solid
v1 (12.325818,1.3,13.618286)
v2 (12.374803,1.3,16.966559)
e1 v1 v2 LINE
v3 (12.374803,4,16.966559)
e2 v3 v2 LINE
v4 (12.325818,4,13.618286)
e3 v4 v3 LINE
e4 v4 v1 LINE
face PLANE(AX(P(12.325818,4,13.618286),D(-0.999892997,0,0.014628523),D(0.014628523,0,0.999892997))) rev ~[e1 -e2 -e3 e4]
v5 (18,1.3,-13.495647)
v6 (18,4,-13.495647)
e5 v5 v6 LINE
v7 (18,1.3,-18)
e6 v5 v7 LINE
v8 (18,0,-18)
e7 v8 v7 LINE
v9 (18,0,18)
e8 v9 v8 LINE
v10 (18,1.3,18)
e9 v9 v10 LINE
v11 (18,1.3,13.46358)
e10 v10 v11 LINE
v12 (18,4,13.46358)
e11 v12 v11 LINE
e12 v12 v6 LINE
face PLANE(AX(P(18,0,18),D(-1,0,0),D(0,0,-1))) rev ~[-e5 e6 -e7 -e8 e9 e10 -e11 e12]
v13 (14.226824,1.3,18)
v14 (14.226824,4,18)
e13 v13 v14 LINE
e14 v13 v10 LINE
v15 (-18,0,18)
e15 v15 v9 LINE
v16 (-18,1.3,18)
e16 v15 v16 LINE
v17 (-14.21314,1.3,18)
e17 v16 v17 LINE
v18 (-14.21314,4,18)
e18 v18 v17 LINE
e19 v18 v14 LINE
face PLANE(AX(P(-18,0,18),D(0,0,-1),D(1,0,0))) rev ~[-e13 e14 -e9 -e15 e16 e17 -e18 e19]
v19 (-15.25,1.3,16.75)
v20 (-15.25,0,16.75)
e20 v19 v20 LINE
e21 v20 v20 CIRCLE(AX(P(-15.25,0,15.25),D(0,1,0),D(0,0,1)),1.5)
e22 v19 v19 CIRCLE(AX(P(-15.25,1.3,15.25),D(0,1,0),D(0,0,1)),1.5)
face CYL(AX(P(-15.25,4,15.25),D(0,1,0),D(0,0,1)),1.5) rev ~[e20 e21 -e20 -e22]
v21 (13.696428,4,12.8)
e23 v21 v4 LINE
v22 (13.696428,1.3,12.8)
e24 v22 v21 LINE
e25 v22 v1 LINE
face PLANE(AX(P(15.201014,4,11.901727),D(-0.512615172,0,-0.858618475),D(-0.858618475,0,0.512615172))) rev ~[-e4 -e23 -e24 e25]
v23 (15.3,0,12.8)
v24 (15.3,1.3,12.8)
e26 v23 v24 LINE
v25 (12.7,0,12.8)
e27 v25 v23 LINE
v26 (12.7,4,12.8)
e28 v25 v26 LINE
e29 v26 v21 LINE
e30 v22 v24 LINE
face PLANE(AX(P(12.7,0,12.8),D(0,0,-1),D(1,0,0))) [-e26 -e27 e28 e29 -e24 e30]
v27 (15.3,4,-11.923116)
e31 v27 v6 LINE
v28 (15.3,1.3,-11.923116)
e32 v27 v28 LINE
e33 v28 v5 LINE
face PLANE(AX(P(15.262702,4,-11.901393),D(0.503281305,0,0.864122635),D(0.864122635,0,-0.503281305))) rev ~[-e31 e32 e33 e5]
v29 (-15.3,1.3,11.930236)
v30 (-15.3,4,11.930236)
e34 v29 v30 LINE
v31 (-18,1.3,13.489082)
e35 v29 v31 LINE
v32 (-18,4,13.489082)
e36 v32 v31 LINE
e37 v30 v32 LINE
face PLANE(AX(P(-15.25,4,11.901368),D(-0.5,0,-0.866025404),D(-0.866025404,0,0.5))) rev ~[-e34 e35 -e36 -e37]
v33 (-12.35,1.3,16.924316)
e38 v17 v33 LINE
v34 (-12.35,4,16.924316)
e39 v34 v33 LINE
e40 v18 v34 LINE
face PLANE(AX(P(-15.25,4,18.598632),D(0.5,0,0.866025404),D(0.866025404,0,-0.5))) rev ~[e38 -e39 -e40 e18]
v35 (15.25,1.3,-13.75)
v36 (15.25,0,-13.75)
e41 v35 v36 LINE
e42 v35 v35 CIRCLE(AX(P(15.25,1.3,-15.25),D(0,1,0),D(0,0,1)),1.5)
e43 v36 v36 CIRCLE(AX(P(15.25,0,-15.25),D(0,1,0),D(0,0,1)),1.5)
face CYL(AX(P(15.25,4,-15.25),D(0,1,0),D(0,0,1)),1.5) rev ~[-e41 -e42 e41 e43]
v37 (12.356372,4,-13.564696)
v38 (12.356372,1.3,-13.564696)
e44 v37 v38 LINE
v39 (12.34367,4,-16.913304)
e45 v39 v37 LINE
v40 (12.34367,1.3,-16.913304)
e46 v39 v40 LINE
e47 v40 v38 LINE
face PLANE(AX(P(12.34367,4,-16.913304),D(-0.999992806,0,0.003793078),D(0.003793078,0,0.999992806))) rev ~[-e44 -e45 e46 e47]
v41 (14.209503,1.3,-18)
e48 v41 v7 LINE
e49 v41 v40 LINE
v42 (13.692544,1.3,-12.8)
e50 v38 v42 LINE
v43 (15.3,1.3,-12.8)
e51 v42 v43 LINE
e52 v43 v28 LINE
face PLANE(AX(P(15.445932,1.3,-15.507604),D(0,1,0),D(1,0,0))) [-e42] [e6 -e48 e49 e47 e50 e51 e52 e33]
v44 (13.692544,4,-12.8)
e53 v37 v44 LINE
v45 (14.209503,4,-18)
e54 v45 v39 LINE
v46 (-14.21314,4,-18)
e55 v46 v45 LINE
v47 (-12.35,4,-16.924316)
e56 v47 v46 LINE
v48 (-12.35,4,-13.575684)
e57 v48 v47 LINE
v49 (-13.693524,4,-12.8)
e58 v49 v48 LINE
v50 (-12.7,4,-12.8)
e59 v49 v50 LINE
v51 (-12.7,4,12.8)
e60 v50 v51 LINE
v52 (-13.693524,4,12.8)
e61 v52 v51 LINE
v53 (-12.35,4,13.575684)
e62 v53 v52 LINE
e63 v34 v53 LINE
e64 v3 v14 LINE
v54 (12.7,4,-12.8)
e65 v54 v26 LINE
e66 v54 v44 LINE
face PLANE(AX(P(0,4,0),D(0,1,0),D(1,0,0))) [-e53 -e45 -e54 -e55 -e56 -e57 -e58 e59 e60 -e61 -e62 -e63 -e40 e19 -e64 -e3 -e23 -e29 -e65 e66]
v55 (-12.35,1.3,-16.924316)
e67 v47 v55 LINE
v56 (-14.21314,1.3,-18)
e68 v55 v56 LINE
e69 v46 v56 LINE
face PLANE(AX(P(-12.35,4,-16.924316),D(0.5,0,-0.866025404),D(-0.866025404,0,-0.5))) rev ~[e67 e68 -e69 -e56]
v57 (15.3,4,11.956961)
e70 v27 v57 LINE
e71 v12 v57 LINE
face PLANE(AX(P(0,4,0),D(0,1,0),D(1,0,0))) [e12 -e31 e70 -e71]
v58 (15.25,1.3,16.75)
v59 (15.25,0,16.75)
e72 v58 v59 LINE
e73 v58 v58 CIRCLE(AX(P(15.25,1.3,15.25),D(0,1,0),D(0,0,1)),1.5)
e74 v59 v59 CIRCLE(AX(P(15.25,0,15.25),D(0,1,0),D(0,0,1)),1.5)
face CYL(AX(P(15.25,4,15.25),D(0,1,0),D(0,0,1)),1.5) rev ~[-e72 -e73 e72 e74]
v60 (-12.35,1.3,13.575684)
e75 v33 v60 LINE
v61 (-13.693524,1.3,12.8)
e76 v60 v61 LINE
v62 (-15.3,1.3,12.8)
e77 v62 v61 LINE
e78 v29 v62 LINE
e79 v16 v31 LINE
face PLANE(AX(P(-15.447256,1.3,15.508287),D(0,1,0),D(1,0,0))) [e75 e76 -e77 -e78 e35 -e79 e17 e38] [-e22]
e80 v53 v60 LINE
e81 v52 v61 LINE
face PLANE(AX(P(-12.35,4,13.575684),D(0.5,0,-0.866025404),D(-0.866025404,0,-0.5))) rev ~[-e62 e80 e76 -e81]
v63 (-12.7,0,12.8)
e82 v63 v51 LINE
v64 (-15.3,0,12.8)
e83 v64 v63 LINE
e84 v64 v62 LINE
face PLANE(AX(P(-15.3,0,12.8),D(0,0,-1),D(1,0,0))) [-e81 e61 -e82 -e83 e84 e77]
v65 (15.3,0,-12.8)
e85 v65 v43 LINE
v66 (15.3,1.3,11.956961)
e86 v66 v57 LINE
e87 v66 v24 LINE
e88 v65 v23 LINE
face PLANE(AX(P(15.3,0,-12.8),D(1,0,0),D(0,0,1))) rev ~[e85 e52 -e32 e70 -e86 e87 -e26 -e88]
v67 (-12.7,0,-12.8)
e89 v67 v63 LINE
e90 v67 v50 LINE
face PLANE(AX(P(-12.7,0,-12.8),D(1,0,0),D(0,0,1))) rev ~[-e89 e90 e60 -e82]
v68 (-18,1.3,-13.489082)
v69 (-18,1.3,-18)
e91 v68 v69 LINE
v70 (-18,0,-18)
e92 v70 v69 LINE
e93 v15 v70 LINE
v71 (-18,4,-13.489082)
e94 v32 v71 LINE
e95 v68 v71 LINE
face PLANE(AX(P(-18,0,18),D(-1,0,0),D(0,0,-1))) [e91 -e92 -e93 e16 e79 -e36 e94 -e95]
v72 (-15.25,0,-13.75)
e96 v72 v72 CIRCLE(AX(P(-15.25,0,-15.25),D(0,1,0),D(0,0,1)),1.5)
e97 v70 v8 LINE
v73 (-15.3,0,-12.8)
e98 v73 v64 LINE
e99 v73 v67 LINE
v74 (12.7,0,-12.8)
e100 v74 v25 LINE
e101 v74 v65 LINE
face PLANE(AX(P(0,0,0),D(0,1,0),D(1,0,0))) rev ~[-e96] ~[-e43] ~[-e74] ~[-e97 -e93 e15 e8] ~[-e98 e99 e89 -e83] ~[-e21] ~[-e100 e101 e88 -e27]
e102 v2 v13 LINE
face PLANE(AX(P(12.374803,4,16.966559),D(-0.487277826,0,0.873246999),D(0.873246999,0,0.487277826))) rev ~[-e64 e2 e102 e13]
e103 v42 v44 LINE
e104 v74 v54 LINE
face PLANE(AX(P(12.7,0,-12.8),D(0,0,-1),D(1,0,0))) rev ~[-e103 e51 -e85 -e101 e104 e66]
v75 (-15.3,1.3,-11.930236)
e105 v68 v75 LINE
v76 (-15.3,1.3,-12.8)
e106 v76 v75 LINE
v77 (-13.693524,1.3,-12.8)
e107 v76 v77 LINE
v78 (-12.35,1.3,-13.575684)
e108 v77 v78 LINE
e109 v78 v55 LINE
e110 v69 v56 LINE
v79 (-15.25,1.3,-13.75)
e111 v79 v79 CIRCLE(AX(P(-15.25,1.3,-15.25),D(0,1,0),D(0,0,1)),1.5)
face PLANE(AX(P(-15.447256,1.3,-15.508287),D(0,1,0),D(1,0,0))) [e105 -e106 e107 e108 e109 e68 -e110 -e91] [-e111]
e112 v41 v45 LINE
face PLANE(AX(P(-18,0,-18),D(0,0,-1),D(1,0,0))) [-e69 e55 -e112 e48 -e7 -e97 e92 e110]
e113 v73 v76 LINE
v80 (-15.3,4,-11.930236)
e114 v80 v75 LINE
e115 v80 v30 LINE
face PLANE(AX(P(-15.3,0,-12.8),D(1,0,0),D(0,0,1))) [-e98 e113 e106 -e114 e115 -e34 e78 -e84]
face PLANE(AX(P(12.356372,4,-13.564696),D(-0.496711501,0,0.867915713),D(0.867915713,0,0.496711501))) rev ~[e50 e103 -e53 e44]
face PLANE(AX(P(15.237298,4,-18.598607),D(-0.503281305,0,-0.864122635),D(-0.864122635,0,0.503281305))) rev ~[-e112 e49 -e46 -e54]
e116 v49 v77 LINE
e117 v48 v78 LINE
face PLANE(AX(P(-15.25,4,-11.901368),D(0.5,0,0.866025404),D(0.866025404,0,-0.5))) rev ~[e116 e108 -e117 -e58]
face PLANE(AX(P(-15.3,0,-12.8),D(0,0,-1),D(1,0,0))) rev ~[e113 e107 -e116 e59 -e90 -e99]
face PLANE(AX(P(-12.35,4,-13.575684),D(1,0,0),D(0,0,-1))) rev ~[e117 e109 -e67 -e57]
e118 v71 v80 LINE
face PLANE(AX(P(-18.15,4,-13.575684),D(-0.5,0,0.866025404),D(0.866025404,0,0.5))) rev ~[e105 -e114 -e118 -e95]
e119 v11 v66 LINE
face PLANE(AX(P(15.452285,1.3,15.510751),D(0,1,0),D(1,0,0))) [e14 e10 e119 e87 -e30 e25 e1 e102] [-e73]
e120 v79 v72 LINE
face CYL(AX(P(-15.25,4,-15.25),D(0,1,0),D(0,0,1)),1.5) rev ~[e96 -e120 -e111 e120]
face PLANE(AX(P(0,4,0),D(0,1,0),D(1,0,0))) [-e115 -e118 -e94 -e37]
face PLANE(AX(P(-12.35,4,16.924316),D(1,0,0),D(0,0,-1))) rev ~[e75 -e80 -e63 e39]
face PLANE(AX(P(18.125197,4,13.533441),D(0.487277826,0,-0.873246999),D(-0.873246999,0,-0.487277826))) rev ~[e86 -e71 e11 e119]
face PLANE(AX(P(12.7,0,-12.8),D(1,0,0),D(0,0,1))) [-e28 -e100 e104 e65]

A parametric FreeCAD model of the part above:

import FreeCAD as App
import Part
import Sketcher

V = App.Vector
Q = App.Units.Quantity


def add_polygon(sketch, points):
    """Adds a closed chain of lines whose ends are joined by coincident constraints."""
    first, n = sketch.GeometryCount, len(points)
    for a, b in zip(points, points[1:] + points[:1]):
        sketch.addGeometry(Part.LineSegment(App.Vector(*a, 0), App.Vector(*b, 0)), False)
    for i in range(n):
        sketch.addConstraint(Sketcher.Constraint("Coincident", first + i, 2, first + (i + 1) % n, 1))

doc = App.newDocument("Part")
params = doc.addObject("Spreadsheet::Sheet", "Params")
for row, (alias, value) in enumerate([
    ("sketch1_width", "36 mm"),
    ("pad1_length", "4 mm"),
    ("sketch2_diameter", "3 mm"),
    ("sketch3_width", "2.9 mm"),
    ("pocket2_length", "2.7 mm"),
    ("sketch4_width", "2.6 mm"),
    ("sketch4_height", "25.6 mm"),
    ("sketch5_width", "2.6 mm"),
    ("sketch5_height", "25.6 mm"),
], start=1):
    params.set(f"A{row}", alias)
    params.set(f"B{row}", "=" + value)
    params.setAlias(f"B{row}", alias)

body = doc.addObject("PartDesign::Body", "Body")

# Sketch on XZ plane
sketch1 = body.newObject("Sketcher::SketchObject", "Sketch")
sketch1.AttachmentSupport = (doc.getObject("XZ_Plane"), [""])
sketch1.MapMode = "FlatFace"
add_polygon(sketch1, [(-18, -18), (-18, 18), (18, 18), (18, -18)])  # lines 0-3
sketch1.addConstraint(Sketcher.Constraint("Vertical", 0))
sketch1.addConstraint(Sketcher.Constraint("Horizontal", 1))
sketch1.addConstraint(Sketcher.Constraint("Vertical", 2))
sketch1.addConstraint(Sketcher.Constraint("Horizontal", 3))
sketch1.addConstraint(Sketcher.Constraint("Symmetric", 0, 2, 2, 2, -1, 1))
sketch1.addConstraint(Sketcher.Constraint("Equal", 3, 0))
sketch1.addConstraint(Sketcher.Constraint("DistanceX", 1, 1, 1, 2, 36.0))
sketch1.setExpression("Constraints[10]", "Params.sketch1_width")
pad1 = body.newObject("PartDesign::Pad", "Pad")
pad1.Profile = sketch1
pad1.setExpression("Length", "Params.pad1_length")
pad1.Reversed = True

# Sketch on XZ plane
sketch2 = body.newObject("Sketcher::SketchObject", "Sketch001")
sketch2.AttachmentSupport = (doc.getObject("XZ_Plane"), [""])
sketch2.MapMode = "FlatFace"
sketch2.AttachmentOffset = App.Placement(V(0, 0, -4), App.Rotation())
sketch2.addGeometry(Part.Circle(V(-15.2, -15.2, 0), V(0, 0, 1), 1.5), False)
sketch2.addGeometry(Part.Circle(V(15.2, -15.2, 0), V(0, 0, 1), 1.5), False)
sketch2.addGeometry(Part.Circle(V(15.2, 15.2, 0), V(0, 0, 1), 1.5), False)
sketch2.addGeometry(Part.Circle(V(-15.2, 15.2, 0), V(0, 0, 1), 1.5), False)
sketch2.addConstraint(Sketcher.Constraint("Equal", 0, 1))
sketch2.addConstraint(Sketcher.Constraint("Equal", 1, 2))
sketch2.addConstraint(Sketcher.Constraint("Equal", 2, 3))
sketch2.addConstraint(Sketcher.Constraint("Symmetric", 0, 3, 2, 3, -1, 1))
sketch2.addConstraint(Sketcher.Constraint("Symmetric", 1, 3, 3, 3, -1, 1))
sketch2.addConstraint(Sketcher.Constraint("Symmetric", 0, 3, 1, 3, -2))
sketch2.addConstraint(Sketcher.Constraint("Diameter", 0, 3.0))
sketch2.addConstraint(Sketcher.Constraint("DistanceX", 0, 3, 1, 3, 30.5))
sketch2.addConstraint(Sketcher.Constraint("DistanceY", 1, 3, 2, 3, 30.5))
sketch2.setExpression("Constraints[6]", "Params.sketch2_diameter")
pocket1 = body.newObject("PartDesign::Pocket", "Pocket")
pocket1.Profile = sketch2
pocket1.Type = "ThroughAll"
pocket1.Reversed = True

# Sketch on XZ plane
sketch3 = body.newObject("Sketcher::SketchObject", "Sketch002")
sketch3.AttachmentSupport = (doc.getObject("XZ_Plane"), [""])
sketch3.MapMode = "FlatFace"
sketch3.AttachmentOffset = App.Placement(V(0, 0, -4), App.Rotation())
add_polygon(sketch3, [(-15.25, -11.901368), (-12.35, -13.575684), (-12.35, -16.924316), (-15.25, -18.598632), (-18.15, -18.598632), (-18.15, -13.575684)])  # lines 0-5
add_polygon(sketch3, [(15.262702, -11.901393), (18.15633, -13.586696), (18.143628, -16.935304), (18.143628, -18.598607), (15.237298, -18.598607), (12.34367, -16.913304), (12.356372, -13.564696)])  # lines 6-12
add_polygon(sketch3, [(18.174182, 16.881714), (18.125197, 13.533441), (15.201014, 11.901727), (12.325818, 13.618286), (12.374803, 16.966559), (15.298986, 18.598273), (18.174182, 18.598273)])  # lines 13-19
add_polygon(sketch3, [(-15.25, 18.598632), (-12.35, 16.924316), (-12.35, 13.575684), (-15.25, 11.901368), (-18.15, 13.575684), (-18.15, 18.598632)])  # lines 20-25
sketch3.addConstraint(Sketcher.Constraint("Vertical", 1))
sketch3.addConstraint(Sketcher.Constraint("Horizontal", 3))
sketch3.addConstraint(Sketcher.Constraint("Vertical", 4))
sketch3.addConstraint(Sketcher.Constraint("Vertical", 8))
sketch3.addConstraint(Sketcher.Constraint("Horizontal", 9))
sketch3.addConstraint(Sketcher.Constraint("Horizontal", 18))
sketch3.addConstraint(Sketcher.Constraint("Vertical", 19))
sketch3.addConstraint(Sketcher.Constraint("Vertical", 21))
sketch3.addConstraint(Sketcher.Constraint("Vertical", 24))
sketch3.addConstraint(Sketcher.Constraint("Horizontal", 25))
sketch3.addConstraint(Sketcher.Constraint("Symmetric", 1, 2, 20, 2, -1))
sketch3.addConstraint(Sketcher.Constraint("Symmetric", 5, 2, 22, 2, -1))
sketch3.addConstraint(Sketcher.Constraint("Symmetric", 4, 2, 23, 2, -1))
sketch3.addConstraint(Sketcher.Constraint("Symmetric", 2, 2, 25, 2, -1))
sketch3.addConstraint(Sketcher.Constraint("Parallel", 2, 5))
sketch3.addConstraint(Sketcher.Constraint("Parallel", 6, 10))
sketch3.addConstraint(Sketcher.Constraint("Parallel", 7, 11))
sketch3.addConstraint(Sketcher.Constraint("Parallel", 13, 16))
sketch3.addConstraint(Sketcher.Constraint("Parallel", 14, 17))
sketch3.addConstraint(Sketcher.Constraint("Parallel", 0, 20))
sketch3.addConstraint(Sketcher.Constraint("Parallel", 5, 22))
sketch3.addConstraint(Sketcher.Constraint("Horizontal", 0, 2, 4, 2))
sketch3.addConstraint(Sketcher.Constraint("Vertical", 2, 2, 5, 2))
sketch3.addConstraint(Sketcher.Constraint("Equal", 5, 6))
sketch3.addConstraint(Sketcher.Constraint("Equal", 6, 7))
sketch3.addConstraint(Sketcher.Constraint("Equal", 7, 10))
sketch3.addConstraint(Sketcher.Constraint("Equal", 10, 11))
sketch3.addConstraint(Sketcher.Constraint("Equal", 11, 12))
sketch3.addConstraint(Sketcher.Constraint("Equal", 12, 13))
sketch3.addConstraint(Sketcher.Constraint("Equal", 13, 14))
sketch3.addConstraint(Sketcher.Constraint("Equal", 14, 15))
sketch3.addConstraint(Sketcher.Constraint("Equal", 15, 16))
sketch3.addConstraint(Sketcher.Constraint("Equal", 16, 17))
sketch3.addConstraint(Sketcher.Constraint("Angle", 0, Q("-30 deg")))
sketch3.addConstraint(Sketcher.Constraint("DistanceX", 3, 2, 3, 1, 2.9))
sketch3.addConstraint(Sketcher.Constraint("DistanceX", 0, 2, -1, 1, 12.35))
sketch3.addConstraint(Sketcher.Constraint("DistanceY", 7, 2, 10, 2, 0.022))
sketch3.addConstraint(Sketcher.Constraint("DistanceX", 9, 2, 9, 1, 2.90633))
sketch3.addConstraint(Sketcher.Constraint("DistanceY", 1, 2, 1, 1, 3.348632))
sketch3.addConstraint(Sketcher.Constraint("DistanceY", 19, 2, 19, 1, 1.716559))
sketch3.addConstraint(Sketcher.Constraint("DistanceX", -1, 1, 9, 2, 15.237298))
sketch3.addConstraint(Sketcher.Constraint("DistanceX", -1, 1, 12, 2, 15.262702))
sketch3.addConstraint(Sketcher.Constraint("DistanceX", 16, 2, 12, 2, 2.887899))
sketch3.addConstraint(Sketcher.Constraint("DistanceY", 21, 2, 15, 2, 0.042602))
sketch3.addConstraint(Sketcher.Constraint("DistanceY", 2, 2, -1, 1, 18.598632))
sketch3.addConstraint(Sketcher.Constraint("DistanceY", -1, 1, 13, 2, 13.533441))
sketch3.addConstraint(Sketcher.Constraint("DistanceY", -1, 1, 16, 2, 16.966559))
sketch3.addConstraint(Sketcher.Constraint("DistanceY", 6, 2, 0, 2, 0.011012))
sketch3.setExpression("Constraints[60]", "Params.sketch3_width")
pocket2 = body.newObject("PartDesign::Pocket", "Pocket001")
pocket2.Profile = sketch3
pocket2.setExpression("Length", "Params.pocket2_length")
pocket2.Reversed = True

# Sketch on XZ plane
sketch4 = body.newObject("Sketcher::SketchObject", "Sketch003")
sketch4.AttachmentSupport = (doc.getObject("XZ_Plane"), [""])
sketch4.MapMode = "FlatFace"
add_polygon(sketch4, [(-15.3, 12.8), (-15.3, -12.8), (-12.7, -12.8), (-12.7, 12.8)])  # lines 0-3
sketch4.addConstraint(Sketcher.Constraint("Vertical", 0))
sketch4.addConstraint(Sketcher.Constraint("Horizontal", 1))
sketch4.addConstraint(Sketcher.Constraint("Vertical", 2))
sketch4.addConstraint(Sketcher.Constraint("Horizontal", 3))
sketch4.addConstraint(Sketcher.Constraint("DistanceX", 1, 1, 1, 2, 2.6))
sketch4.addConstraint(Sketcher.Constraint("DistanceY", 0, 2, 0, 1, 25.6))
sketch4.addConstraint(Sketcher.Constraint("DistanceX", 0, 2, -1, 1, 15.3))
sketch4.addConstraint(Sketcher.Constraint("DistanceY", 0, 2, -1, 1, 12.8))
sketch4.setExpression("Constraints[8]", "Params.sketch4_width")
sketch4.setExpression("Constraints[9]", "Params.sketch4_height")
pocket3 = body.newObject("PartDesign::Pocket", "Pocket002")
pocket3.Profile = sketch4
pocket3.Type = "UpToFirst"

# Sketch on XZ plane
sketch5 = body.newObject("Sketcher::SketchObject", "Sketch004")
sketch5.AttachmentSupport = (doc.getObject("XZ_Plane"), [""])
sketch5.MapMode = "FlatFace"
add_polygon(sketch5, [(12.7, 12.8), (12.7, -12.8), (15.3, -12.8), (15.3, 12.8)])  # lines 0-3
sketch5.addConstraint(Sketcher.Constraint("Vertical", 0))
sketch5.addConstraint(Sketcher.Constraint("Horizontal", 1))
sketch5.addConstraint(Sketcher.Constraint("Vertical", 2))
sketch5.addConstraint(Sketcher.Constraint("Horizontal", 3))
sketch5.addConstraint(Sketcher.Constraint("DistanceX", 1, 1, 1, 2, 2.6))
sketch5.addConstraint(Sketcher.Constraint("DistanceY", 0, 2, 0, 1, 25.6))
sketch5.addConstraint(Sketcher.Constraint("DistanceX", -1, 1, 0, 2, 12.7))
sketch5.addConstraint(Sketcher.Constraint("DistanceY", 0, 2, -1, 1, 12.8))
sketch5.setExpression("Constraints[8]", "Params.sketch5_width")
sketch5.setExpression("Constraints[9]", "Params.sketch5_height")
pocket4 = body.newObject("PartDesign::Pocket", "Pocket003")
pocket4.Profile = sketch5
pocket4.Type = "UpToFirst"

doc.recompute()
